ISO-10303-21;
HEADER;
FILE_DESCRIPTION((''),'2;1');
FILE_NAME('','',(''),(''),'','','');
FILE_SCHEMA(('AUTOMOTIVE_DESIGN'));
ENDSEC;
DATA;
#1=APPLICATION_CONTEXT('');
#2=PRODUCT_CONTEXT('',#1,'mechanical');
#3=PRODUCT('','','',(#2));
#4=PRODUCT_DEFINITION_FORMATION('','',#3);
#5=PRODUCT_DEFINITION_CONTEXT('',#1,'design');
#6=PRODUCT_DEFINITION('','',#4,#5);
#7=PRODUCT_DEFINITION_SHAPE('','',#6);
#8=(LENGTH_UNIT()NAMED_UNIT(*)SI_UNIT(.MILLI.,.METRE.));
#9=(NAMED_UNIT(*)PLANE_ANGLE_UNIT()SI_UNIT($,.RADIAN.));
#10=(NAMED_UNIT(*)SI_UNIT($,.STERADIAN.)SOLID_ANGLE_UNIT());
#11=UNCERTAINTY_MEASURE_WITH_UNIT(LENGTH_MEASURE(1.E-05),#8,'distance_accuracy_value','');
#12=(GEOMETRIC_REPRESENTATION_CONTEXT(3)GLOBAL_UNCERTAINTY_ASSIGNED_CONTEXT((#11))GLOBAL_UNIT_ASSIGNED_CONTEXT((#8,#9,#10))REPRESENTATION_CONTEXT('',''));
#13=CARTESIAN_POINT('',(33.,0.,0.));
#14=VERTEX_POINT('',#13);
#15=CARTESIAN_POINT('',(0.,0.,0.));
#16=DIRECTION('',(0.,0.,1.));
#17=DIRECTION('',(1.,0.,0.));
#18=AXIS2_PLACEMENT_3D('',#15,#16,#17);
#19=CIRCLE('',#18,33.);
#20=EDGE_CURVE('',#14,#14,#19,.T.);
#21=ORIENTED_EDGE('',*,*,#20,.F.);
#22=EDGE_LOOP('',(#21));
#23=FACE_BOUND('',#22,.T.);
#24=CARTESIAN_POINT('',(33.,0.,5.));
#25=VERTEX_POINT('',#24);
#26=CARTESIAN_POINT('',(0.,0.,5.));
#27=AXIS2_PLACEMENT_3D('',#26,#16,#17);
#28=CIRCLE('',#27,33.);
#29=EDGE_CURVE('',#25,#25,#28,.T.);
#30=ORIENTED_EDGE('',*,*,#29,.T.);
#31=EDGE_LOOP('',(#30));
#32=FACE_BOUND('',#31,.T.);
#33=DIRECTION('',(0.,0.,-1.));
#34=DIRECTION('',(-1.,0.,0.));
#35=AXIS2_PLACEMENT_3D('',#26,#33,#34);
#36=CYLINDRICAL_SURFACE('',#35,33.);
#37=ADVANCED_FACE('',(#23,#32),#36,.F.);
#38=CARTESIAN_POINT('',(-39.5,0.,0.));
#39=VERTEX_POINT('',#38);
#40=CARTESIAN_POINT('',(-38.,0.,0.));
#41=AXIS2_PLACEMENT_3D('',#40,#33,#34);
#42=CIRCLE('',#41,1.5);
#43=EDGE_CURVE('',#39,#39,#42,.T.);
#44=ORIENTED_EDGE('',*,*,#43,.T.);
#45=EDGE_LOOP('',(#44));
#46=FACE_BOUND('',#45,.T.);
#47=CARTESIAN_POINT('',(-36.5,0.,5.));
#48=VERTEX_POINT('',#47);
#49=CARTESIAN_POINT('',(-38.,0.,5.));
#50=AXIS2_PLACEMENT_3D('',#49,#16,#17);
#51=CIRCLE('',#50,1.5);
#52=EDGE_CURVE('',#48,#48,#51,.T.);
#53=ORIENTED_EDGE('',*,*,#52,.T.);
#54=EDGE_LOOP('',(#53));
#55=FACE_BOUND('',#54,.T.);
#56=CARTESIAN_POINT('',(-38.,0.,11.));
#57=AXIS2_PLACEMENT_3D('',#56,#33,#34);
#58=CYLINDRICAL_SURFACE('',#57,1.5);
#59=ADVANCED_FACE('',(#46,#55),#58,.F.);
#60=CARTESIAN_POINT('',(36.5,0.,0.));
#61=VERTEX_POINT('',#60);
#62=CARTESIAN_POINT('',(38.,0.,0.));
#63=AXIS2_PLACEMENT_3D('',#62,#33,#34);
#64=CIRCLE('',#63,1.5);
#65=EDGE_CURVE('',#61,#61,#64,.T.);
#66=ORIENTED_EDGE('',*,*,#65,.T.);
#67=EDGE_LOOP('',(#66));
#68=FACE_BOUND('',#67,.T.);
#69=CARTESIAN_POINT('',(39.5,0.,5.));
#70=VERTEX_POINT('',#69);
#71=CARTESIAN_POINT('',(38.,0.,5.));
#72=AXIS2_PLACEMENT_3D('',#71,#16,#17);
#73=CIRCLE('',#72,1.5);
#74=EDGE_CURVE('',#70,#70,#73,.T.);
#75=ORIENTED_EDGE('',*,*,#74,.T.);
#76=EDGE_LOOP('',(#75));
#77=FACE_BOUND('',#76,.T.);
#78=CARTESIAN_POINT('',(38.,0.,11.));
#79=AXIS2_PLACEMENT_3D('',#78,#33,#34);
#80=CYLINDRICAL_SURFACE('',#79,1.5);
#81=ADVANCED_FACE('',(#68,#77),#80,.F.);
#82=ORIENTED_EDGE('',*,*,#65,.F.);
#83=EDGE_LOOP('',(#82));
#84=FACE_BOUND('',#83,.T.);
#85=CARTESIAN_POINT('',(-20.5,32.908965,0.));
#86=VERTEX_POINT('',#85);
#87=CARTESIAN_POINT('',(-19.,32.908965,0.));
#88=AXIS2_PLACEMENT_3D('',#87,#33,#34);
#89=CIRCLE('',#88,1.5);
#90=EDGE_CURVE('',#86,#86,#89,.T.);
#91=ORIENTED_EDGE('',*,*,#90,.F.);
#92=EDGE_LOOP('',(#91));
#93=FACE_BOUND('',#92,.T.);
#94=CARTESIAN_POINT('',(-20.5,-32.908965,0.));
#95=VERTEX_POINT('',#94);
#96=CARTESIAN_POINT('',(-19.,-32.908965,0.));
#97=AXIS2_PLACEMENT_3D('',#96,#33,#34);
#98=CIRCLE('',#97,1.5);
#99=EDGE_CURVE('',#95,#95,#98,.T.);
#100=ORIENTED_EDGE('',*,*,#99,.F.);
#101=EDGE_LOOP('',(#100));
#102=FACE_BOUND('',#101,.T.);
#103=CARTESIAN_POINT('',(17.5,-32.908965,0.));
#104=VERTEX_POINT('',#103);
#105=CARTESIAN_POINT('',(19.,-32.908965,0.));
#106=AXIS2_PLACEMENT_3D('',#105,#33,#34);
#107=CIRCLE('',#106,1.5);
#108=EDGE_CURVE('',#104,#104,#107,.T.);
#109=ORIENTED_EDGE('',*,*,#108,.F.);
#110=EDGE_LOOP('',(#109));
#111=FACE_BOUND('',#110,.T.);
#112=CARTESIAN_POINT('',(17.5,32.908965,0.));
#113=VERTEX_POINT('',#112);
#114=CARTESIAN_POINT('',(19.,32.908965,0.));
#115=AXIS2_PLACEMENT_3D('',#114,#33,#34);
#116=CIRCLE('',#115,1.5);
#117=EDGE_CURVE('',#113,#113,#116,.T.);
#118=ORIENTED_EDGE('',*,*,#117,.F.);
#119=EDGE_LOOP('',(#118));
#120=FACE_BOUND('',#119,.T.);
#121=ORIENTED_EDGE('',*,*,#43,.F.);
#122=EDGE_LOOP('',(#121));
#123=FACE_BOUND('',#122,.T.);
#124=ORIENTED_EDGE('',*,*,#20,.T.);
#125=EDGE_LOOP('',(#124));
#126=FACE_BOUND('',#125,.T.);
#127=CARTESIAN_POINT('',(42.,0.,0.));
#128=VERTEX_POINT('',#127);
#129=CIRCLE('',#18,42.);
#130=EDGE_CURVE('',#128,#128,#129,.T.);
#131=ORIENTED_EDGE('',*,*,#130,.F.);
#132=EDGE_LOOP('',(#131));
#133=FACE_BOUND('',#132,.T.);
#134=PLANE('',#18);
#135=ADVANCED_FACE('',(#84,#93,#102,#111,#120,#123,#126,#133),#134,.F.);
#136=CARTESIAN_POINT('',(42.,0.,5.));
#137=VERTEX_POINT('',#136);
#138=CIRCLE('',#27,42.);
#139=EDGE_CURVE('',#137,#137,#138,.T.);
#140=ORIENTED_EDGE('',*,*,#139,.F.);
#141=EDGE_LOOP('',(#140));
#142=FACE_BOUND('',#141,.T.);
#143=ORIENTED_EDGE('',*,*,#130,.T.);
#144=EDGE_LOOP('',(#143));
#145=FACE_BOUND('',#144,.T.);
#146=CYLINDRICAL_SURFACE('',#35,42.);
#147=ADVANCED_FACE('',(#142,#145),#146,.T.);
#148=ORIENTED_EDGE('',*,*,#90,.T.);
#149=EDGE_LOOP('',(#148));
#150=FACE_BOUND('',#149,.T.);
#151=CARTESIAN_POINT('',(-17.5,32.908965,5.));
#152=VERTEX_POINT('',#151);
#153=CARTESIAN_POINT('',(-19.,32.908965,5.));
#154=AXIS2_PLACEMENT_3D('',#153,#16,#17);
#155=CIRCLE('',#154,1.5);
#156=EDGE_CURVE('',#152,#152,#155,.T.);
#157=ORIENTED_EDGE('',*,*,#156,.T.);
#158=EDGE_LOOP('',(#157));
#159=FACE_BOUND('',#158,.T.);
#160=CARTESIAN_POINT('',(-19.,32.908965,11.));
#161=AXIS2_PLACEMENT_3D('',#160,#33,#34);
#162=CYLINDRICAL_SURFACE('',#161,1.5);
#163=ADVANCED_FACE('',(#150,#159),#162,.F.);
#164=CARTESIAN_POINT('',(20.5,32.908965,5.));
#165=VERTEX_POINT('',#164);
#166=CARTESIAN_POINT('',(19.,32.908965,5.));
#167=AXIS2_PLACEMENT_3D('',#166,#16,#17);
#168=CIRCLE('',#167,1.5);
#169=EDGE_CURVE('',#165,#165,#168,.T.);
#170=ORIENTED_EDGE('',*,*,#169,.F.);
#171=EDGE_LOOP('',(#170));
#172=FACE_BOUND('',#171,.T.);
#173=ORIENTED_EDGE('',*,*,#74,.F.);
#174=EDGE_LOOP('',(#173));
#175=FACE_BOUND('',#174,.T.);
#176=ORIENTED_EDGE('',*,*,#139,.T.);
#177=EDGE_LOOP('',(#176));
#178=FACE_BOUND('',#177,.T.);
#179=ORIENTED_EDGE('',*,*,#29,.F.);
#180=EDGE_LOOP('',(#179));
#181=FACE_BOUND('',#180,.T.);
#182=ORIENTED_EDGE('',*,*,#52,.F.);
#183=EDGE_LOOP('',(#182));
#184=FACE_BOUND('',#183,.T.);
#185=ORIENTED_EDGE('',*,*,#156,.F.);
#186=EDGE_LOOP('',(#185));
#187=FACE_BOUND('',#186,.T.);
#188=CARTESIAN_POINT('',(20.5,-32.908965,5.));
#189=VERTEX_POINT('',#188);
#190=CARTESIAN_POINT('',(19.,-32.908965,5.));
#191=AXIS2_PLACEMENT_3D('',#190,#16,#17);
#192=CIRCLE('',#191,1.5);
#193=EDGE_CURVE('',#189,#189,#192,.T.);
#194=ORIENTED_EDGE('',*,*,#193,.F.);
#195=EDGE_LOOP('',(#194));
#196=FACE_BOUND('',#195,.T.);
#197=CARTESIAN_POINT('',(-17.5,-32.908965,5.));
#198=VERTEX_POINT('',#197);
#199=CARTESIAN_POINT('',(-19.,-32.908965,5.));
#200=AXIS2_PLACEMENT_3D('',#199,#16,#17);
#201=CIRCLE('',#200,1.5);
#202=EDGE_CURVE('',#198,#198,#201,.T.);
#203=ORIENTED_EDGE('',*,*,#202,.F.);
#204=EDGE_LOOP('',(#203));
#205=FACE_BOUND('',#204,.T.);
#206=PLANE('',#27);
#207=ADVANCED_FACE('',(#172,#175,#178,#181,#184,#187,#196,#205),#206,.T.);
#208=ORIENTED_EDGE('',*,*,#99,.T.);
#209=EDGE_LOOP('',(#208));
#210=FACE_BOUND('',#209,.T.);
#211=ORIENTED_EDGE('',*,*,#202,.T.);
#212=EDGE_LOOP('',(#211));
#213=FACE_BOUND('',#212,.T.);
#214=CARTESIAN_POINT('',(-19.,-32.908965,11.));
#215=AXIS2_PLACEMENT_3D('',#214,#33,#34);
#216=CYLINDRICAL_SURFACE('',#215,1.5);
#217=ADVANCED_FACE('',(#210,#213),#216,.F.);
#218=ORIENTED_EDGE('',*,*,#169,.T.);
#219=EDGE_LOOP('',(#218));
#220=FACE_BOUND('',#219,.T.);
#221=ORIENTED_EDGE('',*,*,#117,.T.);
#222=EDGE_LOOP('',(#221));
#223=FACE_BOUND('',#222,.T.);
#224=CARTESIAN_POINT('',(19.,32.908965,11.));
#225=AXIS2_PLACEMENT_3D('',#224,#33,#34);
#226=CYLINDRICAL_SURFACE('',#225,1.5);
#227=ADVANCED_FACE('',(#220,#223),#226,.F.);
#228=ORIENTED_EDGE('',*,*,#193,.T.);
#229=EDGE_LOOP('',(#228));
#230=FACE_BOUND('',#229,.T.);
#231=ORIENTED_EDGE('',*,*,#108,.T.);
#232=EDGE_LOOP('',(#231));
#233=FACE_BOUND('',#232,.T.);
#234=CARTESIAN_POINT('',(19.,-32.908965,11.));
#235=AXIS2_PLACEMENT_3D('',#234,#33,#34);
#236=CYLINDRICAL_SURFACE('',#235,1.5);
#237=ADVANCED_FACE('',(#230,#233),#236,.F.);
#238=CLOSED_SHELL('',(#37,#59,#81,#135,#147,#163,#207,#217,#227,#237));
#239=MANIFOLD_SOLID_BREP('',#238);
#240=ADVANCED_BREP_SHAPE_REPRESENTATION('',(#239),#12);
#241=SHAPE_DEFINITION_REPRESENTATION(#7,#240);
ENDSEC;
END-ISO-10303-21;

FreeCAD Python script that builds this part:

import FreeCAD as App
import Part
import Sketcher
from FreeCAD import Vector

doc = App.newDocument("Part")
params = doc.addObject("Spreadsheet::Sheet", "Params")
for row, (alias, value) in enumerate([
    ("sketch1_diameter", "84 mm"),
    ("sketch1_diameter2", "66 mm"),
    ("pad1_length", "5 mm"),
    ("sketch2_diameter", "3 mm"),
    ("pocket1_length", "11 mm"),
], start=1):
    params.set(f"A{row}", alias)
    params.set(f"B{row}", "=" + value)
    params.setAlias(f"B{row}", alias)

body = doc.addObject("PartDesign::Body", "Body")

# Sketch on XY plane
sketch1 = body.newObject("Sketcher::SketchObject", "Sketch")
sketch1.AttachmentSupport = (doc.getObject("XY_Plane"), [""])
sketch1.MapMode = "FlatFace"
sketch1.addGeometry([
    Part.Circle(Vector(0, 0, 0), Vector(0, 0, 1), 42),
    Part.Circle(Vector(0, 0, 0), Vector(0, 0, 1), 33),
], False)
sketch1.addConstraint([
    Sketcher.Constraint("Coincident", 0, 3, -1, 1),
    Sketcher.Constraint("Coincident", 1, 3, -1, 1),
    Sketcher.Constraint("Diameter", 0, 84.0),
    Sketcher.Constraint("Diameter", 1, 66.0),
])
sketch1.setExpression("Constraints[2]", "Params.sketch1_diameter")
sketch1.setExpression("Constraints[3]", "Params.sketch1_diameter2")
pad1 = body.newObject("PartDesign::Pad", "Pad")
pad1.Profile = sketch1
pad1.setExpression("Length", "Params.pad1_length")

# Sketch on XY plane
sketch2 = body.newObject("Sketcher::SketchObject", "Sketch001")
sketch2.AttachmentSupport = (doc.getObject("XY_Plane"), [""])
sketch2.MapMode = "FlatFace"
sketch2.addGeometry([
    Part.Circle(Vector(19, 32.9, 0), Vector(0, 0, 1), 1.5),  # 0
    Part.Circle(Vector(-19, 32.9, 0), Vector(0, 0, 1), 1.5),  # 1
    Part.Circle(Vector(-38, 0, 0), Vector(0, 0, 1), 1.5),  # 2
    Part.Circle(Vector(-19, -32.9, 0), Vector(0, 0, 1), 1.5),  # 3
    Part.Circle(Vector(19, -32.9, 0), Vector(0, 0, 1), 1.5),  # 4
    Part.Circle(Vector(38, 0, 0), Vector(0, 0, 1), 1.5),  # 5
], False)
sketch2.addConstraint([
    Sketcher.Constraint("Equal", 0, 1),
    Sketcher.Constraint("Equal", 1, 2),
    Sketcher.Constraint("Equal", 2, 3),
    Sketcher.Constraint("Equal", 3, 4),
    Sketcher.Constraint("Equal", 4, 5),
    Sketcher.Constraint("Symmetric", 0, 3, 3, 3, -1, 1),
    Sketcher.Constraint("Symmetric", 1, 3, 4, 3, -1, 1),
    Sketcher.Constraint("Symmetric", 2, 3, 5, 3, -1, 1),
    Sketcher.Constraint("Symmetric", 0, 3, 1, 3, -2),
    Sketcher.Constraint("PointOnObject", 2, 3, -1),
    Sketcher.Constraint("Diameter", 0, 3.0),
    Sketcher.Constraint("DistanceX", -1, 1, 0, 3, 19.0),
    Sketcher.Constraint("DistanceX", 2, 3, -1, 1, 38.0),
    Sketcher.Constraint("DistanceY", 3, 3, 1, 3, 65.817931),
])
sketch2.setExpression("Constraints[10]", "Params.sketch2_diameter")
pocket1 = body.newObject("PartDesign::Pocket", "Pocket")
pocket1.Profile = sketch2
pocket1.setExpression("Length", "Params.pocket1_length")
pocket1.Reversed = True

doc.recompute()
